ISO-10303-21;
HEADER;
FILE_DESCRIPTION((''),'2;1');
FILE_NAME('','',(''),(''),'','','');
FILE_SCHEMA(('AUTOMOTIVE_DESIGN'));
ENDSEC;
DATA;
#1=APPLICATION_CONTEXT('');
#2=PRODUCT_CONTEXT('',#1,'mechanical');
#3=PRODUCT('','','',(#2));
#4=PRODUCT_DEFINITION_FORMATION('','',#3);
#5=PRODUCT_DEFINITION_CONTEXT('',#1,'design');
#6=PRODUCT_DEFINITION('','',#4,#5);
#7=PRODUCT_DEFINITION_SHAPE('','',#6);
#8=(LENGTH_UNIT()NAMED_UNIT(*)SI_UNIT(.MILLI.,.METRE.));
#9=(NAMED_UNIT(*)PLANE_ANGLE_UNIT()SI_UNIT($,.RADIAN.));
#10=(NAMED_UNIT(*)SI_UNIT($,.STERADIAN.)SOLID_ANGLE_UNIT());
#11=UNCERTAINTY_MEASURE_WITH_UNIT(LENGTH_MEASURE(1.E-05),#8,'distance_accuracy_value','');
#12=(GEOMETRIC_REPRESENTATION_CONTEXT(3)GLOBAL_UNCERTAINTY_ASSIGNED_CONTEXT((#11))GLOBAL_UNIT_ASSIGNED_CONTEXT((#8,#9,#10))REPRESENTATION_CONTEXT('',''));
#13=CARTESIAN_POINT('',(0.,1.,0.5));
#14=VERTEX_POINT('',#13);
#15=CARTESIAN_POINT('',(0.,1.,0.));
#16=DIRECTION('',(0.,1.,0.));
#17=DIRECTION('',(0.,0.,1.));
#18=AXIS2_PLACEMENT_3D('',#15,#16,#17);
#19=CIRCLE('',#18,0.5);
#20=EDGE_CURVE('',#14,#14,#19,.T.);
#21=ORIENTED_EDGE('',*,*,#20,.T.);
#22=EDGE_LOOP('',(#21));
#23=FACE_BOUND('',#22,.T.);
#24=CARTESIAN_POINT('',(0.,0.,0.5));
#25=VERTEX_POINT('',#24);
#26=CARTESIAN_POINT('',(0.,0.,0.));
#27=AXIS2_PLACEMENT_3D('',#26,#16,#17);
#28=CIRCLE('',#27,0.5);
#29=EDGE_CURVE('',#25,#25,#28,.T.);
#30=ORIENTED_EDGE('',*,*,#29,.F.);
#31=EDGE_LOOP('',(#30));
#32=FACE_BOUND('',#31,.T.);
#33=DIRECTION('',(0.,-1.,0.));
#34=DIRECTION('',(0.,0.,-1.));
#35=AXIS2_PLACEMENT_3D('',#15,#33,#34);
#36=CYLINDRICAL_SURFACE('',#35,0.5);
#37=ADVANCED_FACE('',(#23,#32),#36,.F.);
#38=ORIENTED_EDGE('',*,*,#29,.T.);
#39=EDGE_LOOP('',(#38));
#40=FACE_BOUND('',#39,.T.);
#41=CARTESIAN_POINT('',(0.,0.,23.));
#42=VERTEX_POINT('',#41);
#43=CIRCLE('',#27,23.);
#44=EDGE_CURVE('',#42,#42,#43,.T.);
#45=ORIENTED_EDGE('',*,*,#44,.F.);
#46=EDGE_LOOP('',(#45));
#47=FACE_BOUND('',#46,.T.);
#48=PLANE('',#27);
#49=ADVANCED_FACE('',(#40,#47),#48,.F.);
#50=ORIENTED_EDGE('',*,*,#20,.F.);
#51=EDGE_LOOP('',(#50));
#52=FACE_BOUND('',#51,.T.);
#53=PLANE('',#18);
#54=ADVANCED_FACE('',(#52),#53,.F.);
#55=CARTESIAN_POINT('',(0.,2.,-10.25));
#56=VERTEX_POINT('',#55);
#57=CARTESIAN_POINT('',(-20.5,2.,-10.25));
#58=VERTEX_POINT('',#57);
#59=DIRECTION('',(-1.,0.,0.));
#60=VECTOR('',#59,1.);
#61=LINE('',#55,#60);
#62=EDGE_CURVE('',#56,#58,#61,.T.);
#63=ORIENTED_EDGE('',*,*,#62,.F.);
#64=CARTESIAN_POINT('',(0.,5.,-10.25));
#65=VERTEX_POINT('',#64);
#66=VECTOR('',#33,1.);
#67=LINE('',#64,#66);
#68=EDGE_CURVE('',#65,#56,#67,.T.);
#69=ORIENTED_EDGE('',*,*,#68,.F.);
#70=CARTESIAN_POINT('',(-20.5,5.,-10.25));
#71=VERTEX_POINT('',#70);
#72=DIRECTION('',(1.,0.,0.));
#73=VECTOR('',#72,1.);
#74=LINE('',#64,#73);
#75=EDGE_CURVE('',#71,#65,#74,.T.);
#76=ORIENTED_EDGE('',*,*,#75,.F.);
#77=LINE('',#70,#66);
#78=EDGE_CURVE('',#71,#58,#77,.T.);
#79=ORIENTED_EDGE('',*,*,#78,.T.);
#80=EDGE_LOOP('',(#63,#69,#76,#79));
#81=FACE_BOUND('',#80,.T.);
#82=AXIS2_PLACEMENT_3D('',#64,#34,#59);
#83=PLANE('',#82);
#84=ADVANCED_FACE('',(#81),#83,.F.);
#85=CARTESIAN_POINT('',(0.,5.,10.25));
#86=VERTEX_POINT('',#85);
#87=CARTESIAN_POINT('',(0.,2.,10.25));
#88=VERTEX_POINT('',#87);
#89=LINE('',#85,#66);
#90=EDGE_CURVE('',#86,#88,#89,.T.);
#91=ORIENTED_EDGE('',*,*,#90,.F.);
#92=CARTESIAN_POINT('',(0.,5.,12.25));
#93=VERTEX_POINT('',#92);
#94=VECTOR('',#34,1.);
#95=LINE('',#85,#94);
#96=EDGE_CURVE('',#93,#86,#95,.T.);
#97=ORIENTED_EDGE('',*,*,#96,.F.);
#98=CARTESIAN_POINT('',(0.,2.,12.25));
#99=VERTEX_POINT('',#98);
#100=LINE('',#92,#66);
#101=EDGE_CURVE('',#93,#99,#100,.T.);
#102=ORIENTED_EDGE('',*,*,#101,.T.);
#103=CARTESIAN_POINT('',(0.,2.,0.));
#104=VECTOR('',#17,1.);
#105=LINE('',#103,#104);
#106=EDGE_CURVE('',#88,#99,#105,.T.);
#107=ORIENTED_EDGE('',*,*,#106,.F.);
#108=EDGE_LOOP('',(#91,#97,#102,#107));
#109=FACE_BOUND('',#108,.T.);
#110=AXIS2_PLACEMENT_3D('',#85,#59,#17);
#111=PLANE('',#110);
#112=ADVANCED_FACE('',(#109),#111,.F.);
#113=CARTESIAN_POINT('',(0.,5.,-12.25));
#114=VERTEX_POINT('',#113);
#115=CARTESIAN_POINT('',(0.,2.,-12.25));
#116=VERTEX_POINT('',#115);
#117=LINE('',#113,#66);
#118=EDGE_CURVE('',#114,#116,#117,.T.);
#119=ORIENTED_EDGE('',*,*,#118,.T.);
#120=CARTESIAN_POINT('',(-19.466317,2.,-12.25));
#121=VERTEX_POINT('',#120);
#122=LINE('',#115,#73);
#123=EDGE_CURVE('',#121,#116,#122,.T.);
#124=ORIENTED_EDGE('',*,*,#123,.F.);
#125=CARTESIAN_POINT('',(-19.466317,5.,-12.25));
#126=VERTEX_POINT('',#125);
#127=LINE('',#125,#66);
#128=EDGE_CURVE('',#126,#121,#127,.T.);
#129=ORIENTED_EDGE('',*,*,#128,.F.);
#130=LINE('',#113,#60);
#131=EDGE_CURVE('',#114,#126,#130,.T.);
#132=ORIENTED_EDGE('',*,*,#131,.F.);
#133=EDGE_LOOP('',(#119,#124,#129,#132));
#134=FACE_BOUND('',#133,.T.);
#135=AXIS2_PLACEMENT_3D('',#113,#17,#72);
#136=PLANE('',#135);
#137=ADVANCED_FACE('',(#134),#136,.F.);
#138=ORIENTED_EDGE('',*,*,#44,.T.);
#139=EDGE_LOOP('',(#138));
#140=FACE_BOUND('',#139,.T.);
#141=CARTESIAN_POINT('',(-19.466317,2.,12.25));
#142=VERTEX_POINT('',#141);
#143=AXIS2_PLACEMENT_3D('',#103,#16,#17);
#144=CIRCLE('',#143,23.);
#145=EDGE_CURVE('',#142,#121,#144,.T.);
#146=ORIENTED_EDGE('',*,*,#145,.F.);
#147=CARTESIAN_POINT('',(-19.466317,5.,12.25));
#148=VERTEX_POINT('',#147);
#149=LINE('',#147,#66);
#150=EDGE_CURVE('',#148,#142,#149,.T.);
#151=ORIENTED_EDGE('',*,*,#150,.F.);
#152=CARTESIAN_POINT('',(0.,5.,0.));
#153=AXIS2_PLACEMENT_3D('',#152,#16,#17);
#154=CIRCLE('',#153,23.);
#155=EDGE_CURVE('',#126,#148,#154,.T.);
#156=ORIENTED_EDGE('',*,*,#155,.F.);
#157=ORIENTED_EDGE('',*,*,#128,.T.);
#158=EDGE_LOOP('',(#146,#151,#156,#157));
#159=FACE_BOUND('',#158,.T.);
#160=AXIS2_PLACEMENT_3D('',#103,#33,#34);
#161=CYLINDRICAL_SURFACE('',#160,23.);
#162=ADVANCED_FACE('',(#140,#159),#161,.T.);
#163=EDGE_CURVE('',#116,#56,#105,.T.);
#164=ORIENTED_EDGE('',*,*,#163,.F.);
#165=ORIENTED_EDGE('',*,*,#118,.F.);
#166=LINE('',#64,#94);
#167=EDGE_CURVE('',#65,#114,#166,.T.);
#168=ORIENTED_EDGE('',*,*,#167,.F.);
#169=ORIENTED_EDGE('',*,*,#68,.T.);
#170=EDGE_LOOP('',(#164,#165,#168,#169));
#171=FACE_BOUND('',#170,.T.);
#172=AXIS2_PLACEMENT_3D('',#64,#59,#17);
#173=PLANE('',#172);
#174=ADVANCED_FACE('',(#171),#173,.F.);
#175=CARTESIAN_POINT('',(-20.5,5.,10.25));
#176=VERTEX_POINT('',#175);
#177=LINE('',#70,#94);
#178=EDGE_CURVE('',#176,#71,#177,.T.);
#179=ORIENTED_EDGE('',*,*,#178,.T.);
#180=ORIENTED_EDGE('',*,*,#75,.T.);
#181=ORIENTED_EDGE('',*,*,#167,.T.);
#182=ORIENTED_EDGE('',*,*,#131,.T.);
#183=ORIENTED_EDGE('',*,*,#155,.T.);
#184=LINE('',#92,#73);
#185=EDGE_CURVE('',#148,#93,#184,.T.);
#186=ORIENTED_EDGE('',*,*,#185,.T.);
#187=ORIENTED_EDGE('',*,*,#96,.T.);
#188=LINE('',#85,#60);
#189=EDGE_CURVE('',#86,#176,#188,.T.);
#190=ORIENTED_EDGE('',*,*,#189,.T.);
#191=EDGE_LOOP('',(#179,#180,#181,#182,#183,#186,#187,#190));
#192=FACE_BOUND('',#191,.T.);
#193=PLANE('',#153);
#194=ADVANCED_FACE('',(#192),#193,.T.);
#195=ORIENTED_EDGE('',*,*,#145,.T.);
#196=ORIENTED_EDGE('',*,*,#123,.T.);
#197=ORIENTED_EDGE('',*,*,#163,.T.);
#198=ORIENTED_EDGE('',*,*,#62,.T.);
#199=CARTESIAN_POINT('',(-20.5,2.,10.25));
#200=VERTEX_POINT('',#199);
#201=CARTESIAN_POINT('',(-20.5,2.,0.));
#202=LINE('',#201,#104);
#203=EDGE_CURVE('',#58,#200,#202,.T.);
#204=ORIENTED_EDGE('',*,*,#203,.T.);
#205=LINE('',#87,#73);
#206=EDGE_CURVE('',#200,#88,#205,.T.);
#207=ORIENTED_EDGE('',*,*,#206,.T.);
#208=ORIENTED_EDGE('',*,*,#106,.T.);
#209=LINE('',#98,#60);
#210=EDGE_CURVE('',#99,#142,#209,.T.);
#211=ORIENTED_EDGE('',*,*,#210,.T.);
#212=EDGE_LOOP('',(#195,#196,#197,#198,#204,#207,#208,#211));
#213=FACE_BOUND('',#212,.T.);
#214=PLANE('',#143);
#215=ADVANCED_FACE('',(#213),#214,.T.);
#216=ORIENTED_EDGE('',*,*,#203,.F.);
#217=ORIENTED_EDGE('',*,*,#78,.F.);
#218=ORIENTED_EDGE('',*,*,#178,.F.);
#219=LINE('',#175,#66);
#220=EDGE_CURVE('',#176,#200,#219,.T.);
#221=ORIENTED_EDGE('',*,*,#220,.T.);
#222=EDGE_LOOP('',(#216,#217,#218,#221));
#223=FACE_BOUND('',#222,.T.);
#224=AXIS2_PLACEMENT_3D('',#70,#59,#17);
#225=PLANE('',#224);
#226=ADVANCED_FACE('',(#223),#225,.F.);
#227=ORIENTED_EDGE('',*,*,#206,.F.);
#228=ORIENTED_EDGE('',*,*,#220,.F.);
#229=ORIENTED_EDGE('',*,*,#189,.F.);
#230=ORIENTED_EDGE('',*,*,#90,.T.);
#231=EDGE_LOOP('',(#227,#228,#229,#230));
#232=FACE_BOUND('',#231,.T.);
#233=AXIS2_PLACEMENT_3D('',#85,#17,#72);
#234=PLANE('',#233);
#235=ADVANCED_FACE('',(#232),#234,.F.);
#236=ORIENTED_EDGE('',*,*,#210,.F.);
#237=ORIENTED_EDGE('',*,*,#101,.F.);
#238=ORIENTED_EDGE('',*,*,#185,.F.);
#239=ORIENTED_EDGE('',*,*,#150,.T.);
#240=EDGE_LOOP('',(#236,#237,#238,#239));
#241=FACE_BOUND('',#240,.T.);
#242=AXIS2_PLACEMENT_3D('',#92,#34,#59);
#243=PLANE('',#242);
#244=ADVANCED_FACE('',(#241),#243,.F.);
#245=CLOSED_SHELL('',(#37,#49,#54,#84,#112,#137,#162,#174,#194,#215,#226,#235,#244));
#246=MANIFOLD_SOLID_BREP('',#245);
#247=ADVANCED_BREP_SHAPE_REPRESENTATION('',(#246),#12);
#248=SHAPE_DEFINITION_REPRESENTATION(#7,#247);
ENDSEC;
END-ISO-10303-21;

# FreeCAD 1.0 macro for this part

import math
import FreeCAD as App
import Part
import Sketcher

doc = App.newDocument("Part")
body = doc.addObject("PartDesign::Body", "Body")

sketch1 = body.newObject("Sketcher::SketchObject", "Sketch")
sketch1.AttachmentSupport = (doc.getObject("XZ_Plane"), [""])
sketch1.MapMode = "FlatFace"
sketch1.addGeometry(Part.Circle(App.Vector(0, 0, 0), App.Vector(0, 0, 1), 23), False)
sketch1.addConstraint([
    Sketcher.Constraint("Coincident", 0, 3, -1, 1),
    Sketcher.Constraint("Diameter", 0, 46.0),
])
pad1 = body.newObject("PartDesign::Pad", "Pad")
pad1.Profile = sketch1
pad1.Length = 2
pad1.Reversed = True

sketch2 = body.newObject("Sketcher::SketchObject", "Sketch001")
sketch2.AttachmentSupport = (doc.getObject("XZ_Plane"), [""])
sketch2.MapMode = "FlatFace"
sketch2.addGeometry(Part.Circle(App.Vector(0, 0, 0), App.Vector(0, 0, 1), 0.5), False)
sketch2.addConstraint([
    Sketcher.Constraint("Coincident", 0, 3, -1, 1),
    Sketcher.Constraint("Diameter", 0, 1.0),
])
pocket1 = body.newObject("PartDesign::Pocket", "Pocket")
pocket1.Profile = sketch2
pocket1.Length = 1

sketch3 = body.newObject("Sketcher::SketchObject", "Sketch002")
sketch3.AttachmentSupport = (doc.getObject("XZ_Plane"), [""])
sketch3.MapMode = "FlatFace"
sketch3.addGeometry([
    Part.LineSegment(App.Vector(0, -10.2, 0), App.Vector(0, -12.2, 0)),
    Part.LineSegment(App.Vector(0, -12.2, 0), App.Vector(-19.5, -12.2, 0)),
    Part.ArcOfCircle(Part.Circle(App.Vector(0, 0, 0), App.Vector(0, 0, 1), 23), math.radians(148), math.radians(212)),
    Part.LineSegment(App.Vector(-19.5, 12.2, 0), App.Vector(0, 12.2, 0)),
    Part.LineSegment(App.Vector(0, 12.2, 0), App.Vector(0, 10.2, 0)),
    Part.LineSegment(App.Vector(0, 10.2, 0), App.Vector(-20.5, 10.2, 0)),
    Part.LineSegment(App.Vector(-20.5, 10.2, 0), App.Vector(-20.5, -10.2, 0)),
    Part.LineSegment(App.Vector(-20.5, -10.2, 0), App.Vector(0, -10.2, 0)),
], False)
sketch3.addConstraint([
    Sketcher.Constraint("Coincident", 0, 2, 1, 1),
    Sketcher.Constraint("Coincident", 1, 2, 2, 2),
    Sketcher.Constraint("Coincident", 2, 1, 3, 1),
    Sketcher.Constraint("Coincident", 3, 2, 4, 1),
    Sketcher.Constraint("Coincident", 4, 2, 5, 1),
    Sketcher.Constraint("Coincident", 5, 2, 6, 1),
    Sketcher.Constraint("Coincident", 6, 2, 7, 1),
    Sketcher.Constraint("Coincident", 7, 2, 0, 1),
    Sketcher.Constraint("Vertical", 0),
    Sketcher.Constraint("Horizontal", 1),
    Sketcher.Constraint("Horizontal", 3),
    Sketcher.Constraint("Vertical", 4),
    Sketcher.Constraint("Horizontal", 5),
    Sketcher.Constraint("Vertical", 6),
    Sketcher.Constraint("Horizontal", 7),
    Sketcher.Constraint("Coincident", 2, 3, -1, 1),
    Sketcher.Constraint("Symmetric", 0, 2, 3, 2, -1, 1),
    Sketcher.Constraint("Symmetric", 4, 2, 7, 2, -1),
    Sketcher.Constraint("Equal", 7, 6),
    Sketcher.Constraint("Radius", 2, 23.0),
    Sketcher.Constraint("DistanceY", 0, 2, 0, 1, 2.0),
    Sketcher.Constraint("DistanceX", 5, 2, 5, 1, 20.5),
])
pad2 = body.newObject("PartDesign::Pad", "Pad001")
pad2.Profile = sketch3
pad2.Length = 5
pad2.Reversed = True

doc.recompute()
